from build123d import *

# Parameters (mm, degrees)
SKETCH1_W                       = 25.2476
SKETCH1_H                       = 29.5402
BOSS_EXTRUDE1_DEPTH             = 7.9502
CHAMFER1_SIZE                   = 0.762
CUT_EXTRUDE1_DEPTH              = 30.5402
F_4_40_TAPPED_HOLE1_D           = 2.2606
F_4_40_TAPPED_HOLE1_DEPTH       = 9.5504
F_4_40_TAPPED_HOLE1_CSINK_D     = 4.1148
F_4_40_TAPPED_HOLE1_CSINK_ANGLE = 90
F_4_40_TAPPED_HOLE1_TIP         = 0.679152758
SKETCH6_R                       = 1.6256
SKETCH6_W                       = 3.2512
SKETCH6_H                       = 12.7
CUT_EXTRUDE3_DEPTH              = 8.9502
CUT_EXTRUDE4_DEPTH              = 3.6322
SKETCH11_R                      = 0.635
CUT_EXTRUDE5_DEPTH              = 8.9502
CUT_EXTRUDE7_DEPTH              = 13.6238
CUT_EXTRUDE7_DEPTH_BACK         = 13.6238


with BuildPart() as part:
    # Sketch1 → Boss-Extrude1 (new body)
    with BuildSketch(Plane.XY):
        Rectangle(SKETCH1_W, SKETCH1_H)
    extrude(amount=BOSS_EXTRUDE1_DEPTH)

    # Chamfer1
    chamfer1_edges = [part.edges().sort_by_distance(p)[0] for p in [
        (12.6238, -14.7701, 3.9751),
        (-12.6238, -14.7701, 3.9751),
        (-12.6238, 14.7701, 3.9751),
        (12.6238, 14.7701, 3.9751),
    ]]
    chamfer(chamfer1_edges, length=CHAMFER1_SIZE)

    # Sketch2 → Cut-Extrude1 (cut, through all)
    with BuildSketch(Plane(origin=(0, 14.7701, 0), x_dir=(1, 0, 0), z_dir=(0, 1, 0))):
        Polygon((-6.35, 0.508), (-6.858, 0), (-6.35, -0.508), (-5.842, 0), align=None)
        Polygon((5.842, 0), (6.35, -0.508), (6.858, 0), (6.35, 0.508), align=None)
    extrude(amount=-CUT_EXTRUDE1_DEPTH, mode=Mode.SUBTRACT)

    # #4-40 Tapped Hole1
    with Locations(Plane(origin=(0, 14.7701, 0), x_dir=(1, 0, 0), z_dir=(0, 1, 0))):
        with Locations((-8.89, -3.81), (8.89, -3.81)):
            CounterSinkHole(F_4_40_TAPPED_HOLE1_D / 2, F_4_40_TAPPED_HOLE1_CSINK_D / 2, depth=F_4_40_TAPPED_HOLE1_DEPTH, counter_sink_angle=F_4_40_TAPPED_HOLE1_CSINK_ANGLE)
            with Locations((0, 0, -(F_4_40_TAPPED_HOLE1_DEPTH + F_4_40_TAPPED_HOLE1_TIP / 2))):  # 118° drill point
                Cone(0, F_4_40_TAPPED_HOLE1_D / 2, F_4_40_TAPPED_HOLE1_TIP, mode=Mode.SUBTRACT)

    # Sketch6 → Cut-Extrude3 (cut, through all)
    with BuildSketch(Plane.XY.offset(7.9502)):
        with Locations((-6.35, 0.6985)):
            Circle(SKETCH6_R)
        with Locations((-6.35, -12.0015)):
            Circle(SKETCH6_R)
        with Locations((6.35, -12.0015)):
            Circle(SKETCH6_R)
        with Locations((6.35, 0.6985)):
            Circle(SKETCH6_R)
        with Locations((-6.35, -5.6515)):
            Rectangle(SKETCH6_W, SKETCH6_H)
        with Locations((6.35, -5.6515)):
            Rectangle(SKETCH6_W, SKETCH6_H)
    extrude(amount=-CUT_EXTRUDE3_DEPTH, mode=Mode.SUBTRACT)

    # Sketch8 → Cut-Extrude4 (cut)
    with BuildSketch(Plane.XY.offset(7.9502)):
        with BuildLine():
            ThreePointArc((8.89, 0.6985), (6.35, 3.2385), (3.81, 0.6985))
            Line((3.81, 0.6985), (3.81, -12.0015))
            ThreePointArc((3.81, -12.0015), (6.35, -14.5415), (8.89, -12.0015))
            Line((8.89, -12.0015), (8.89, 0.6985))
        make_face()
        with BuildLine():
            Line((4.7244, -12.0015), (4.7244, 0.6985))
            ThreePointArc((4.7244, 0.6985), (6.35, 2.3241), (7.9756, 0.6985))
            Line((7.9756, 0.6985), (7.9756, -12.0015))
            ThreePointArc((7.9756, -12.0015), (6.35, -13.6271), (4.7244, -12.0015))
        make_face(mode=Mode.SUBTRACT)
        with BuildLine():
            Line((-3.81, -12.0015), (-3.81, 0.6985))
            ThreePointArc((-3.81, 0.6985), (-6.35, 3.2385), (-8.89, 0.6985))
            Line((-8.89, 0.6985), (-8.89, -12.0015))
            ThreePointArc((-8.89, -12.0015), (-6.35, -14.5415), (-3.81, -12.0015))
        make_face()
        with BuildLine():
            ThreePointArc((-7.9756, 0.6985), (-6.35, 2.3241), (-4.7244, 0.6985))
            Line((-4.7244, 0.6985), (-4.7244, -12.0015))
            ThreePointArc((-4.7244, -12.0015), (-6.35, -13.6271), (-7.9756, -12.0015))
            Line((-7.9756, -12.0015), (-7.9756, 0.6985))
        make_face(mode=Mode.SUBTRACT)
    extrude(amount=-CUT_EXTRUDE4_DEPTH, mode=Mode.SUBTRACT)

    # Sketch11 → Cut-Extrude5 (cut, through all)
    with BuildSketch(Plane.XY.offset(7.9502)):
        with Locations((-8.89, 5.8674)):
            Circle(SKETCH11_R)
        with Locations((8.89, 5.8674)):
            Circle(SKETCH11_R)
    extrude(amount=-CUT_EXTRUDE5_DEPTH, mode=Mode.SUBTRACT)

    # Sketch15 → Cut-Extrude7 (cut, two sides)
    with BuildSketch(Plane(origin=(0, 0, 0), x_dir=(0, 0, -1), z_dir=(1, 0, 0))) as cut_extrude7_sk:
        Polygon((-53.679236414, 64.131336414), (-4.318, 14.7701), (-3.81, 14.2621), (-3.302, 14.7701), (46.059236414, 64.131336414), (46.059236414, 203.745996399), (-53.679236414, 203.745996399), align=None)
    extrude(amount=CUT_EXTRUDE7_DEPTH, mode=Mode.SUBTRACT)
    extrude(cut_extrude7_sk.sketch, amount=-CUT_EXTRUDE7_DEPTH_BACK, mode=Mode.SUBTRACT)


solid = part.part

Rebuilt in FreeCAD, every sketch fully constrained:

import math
import FreeCAD as App
import Part
import Sketcher
from FreeCAD import Vector
Q = App.Units.Quantity


def edges_at(feature, points):
    """Names of the edges that pass closest to the given points."""
    edges = feature.Shape.Edges
    near = lambda p: min(range(len(edges)), key=lambda i: edges[i].distToShape(Part.Vertex(*p))[0])
    return sorted({f"Edge{near(p) + 1}" for p in points})

doc = App.newDocument("Part")
body = doc.addObject("PartDesign::Body", "Body")

sketch1 = body.newObject("Sketcher::SketchObject", "Sketch")
sketch1.AttachmentSupport = (doc.getObject("XY_Plane"), [""])
sketch1.MapMode = "FlatFace"
sketch1.addGeometry(Part.LineSegment(Vector(-13, 15, 0), Vector(-13, -15, 0)), False)
sketch1.addGeometry(Part.LineSegment(Vector(-13, -15, 0), Vector(13, -15, 0)), False)
sketch1.addGeometry(Part.LineSegment(Vector(13, -15, 0), Vector(13, 15, 0)), False)
sketch1.addGeometry(Part.LineSegment(Vector(13, 15, 0), Vector(-13, 15, 0)), False)
sketch1.addConstraint(Sketcher.Constraint("Coincident", 0, 2, 1, 1))
sketch1.addConstraint(Sketcher.Constraint("Coincident", 1, 2, 2, 1))
sketch1.addConstraint(Sketcher.Constraint("Coincident", 2, 2, 3, 1))
sketch1.addConstraint(Sketcher.Constraint("Coincident", 3, 2, 0, 1))
sketch1.addConstraint(Sketcher.Constraint("Vertical", 0))
sketch1.addConstraint(Sketcher.Constraint("Horizontal", 1))
sketch1.addConstraint(Sketcher.Constraint("Vertical", 2))
sketch1.addConstraint(Sketcher.Constraint("Horizontal", 3))
sketch1.addConstraint(Sketcher.Constraint("Symmetric", 0, 2, 2, 2, -1, 1))
sketch1.addConstraint(Sketcher.Constraint("DistanceX", 1, 1, 1, 2, Q("0.994 in")))
sketch1.addConstraint(Sketcher.Constraint("DistanceY", 0, 2, 0, 1, Q("1.163 in")))
pad1 = body.newObject("PartDesign::Pad", "Pad")
pad1.Profile = sketch1
pad1.Length = Q("0.313 in")
doc.recompute()

chamfer = body.newObject("PartDesign::Chamfer", "Chamfer")
chamfer.Base = (pad1, edges_at(pad1, [
    (12.624, -14.77, 3.975),
    (-12.624, -14.77, 3.975),
    (-12.624, 14.77, 3.975),
    (12.624, 14.77, 3.975),
]))
chamfer.Size = Q("0.03 in")

sketch2 = body.newObject("Sketcher::SketchObject", "Sketch001")
sketch2.AttachmentSupport = (doc.getObject("XZ_Plane"), [""])
sketch2.MapMode = "FlatFace"
sketch2.AttachmentOffset = App.Placement(Vector(0, 0, -0.5815 * 25.4), App.Rotation())
sketch2.addGeometry(Part.LineSegment(Vector(-6.3, -0.5, 0), Vector(-6.9, 0, 0)), False)
sketch2.addGeometry(Part.LineSegment(Vector(-6.9, 0, 0), Vector(-6.3, 0.5, 0)), False)
sketch2.addGeometry(Part.LineSegment(Vector(-6.3, 0.5, 0), Vector(-5.8, 0, 0)), False)
sketch2.addGeometry(Part.LineSegment(Vector(-5.8, 0, 0), Vector(-6.3, -0.5, 0)), False)
sketch2.addGeometry(Part.LineSegment(Vector(5.8, 0, 0), Vector(6.3, 0.5, 0)), False)
sketch2.addGeometry(Part.LineSegment(Vector(6.3, 0.5, 0), Vector(6.9, 0, 0)), False)
sketch2.addGeometry(Part.LineSegment(Vector(6.9, 0, 0), Vector(6.3, -0.5, 0)), False)
sketch2.addGeometry(Part.LineSegment(Vector(6.3, -0.5, 0), Vector(5.8, 0, 0)), False)
sketch2.addConstraint(Sketcher.Constraint("Coincident", 0, 2, 1, 1))
sketch2.addConstraint(Sketcher.Constraint("Coincident", 1, 2, 2, 1))
sketch2.addConstraint(Sketcher.Constraint("Coincident", 2, 2, 3, 1))
sketch2.addConstraint(Sketcher.Constraint("Coincident", 3, 2, 0, 1))
sketch2.addConstraint(Sketcher.Constraint("Coincident", 4, 2, 5, 1))
sketch2.addConstraint(Sketcher.Constraint("Coincident", 5, 2, 6, 1))
sketch2.addConstraint(Sketcher.Constraint("Coincident", 6, 2, 7, 1))
sketch2.addConstraint(Sketcher.Constraint("Coincident", 7, 2, 4, 1))
sketch2.addConstraint(Sketcher.Constraint("Symmetric", 3, 2, 4, 2, -1, 1))
sketch2.addConstraint(Sketcher.Constraint("Symmetric", 0, 2, 5, 2, -1, 1))
sketch2.addConstraint(Sketcher.Constraint("Symmetric", 1, 2, 6, 2, -1, 1))
sketch2.addConstraint(Sketcher.Constraint("Symmetric", 2, 2, 7, 2, -1, 1))
sketch2.addConstraint(Sketcher.Constraint("Symmetric", 1, 2, 4, 2, -2))
sketch2.addConstraint(Sketcher.Constraint("PointOnObject", 0, 2, -1))
sketch2.addConstraint(Sketcher.Constraint("PointOnObject", 2, 2, -1))
sketch2.addConstraint(Sketcher.Constraint("Perpendicular", 0, 1))
sketch2.addConstraint(Sketcher.Constraint("Perpendicular", 1, 2))
sketch2.addConstraint(Sketcher.Constraint("DistanceX", 1, 2, 4, 2, Q("0.5 in")))
sketch2.addConstraint(Sketcher.Constraint("DistanceX", 0, 2, -1, 1, Q("0.27 in")))
pocket1 = body.newObject("PartDesign::Pocket", "Pocket")
pocket1.Profile = sketch2
pocket1.Type = "ThroughAll"
pocket1.Reversed = True

sketch3 = body.newObject("Sketcher::SketchObject", "Sketch002")
sketch3.AttachmentSupport = (doc.getObject("XZ_Plane"), [""])
sketch3.MapMode = "FlatFace"
sketch3.AttachmentOffset = App.Placement(Vector(0, 0, -0.5815 * 25.4), App.Rotation())
sketch3.addGeometry(Part.Circle(Vector(-8.9, 3.8, 0), Vector(0, 0, 1), 1.1), False)
sketch3.addGeometry(Part.Circle(Vector(8.9, 3.8, 0), Vector(0, 0, 1), 1.1), False)
sketch3.addConstraint(Sketcher.Constraint("Equal", 0, 1))
sketch3.addConstraint(Sketcher.Constraint("Symmetric", 0, 3, 1, 3, -2))
sketch3.addConstraint(Sketcher.Constraint("Diameter", 0, Q("0.089 in")))
sketch3.addConstraint(Sketcher.Constraint("DistanceX", 0, 3, 1, 3, Q("0.7 in")))
sketch3.addConstraint(Sketcher.Constraint("DistanceY", -1, 1, 0, 3, Q("0.15 in")))
doc.recompute()
hole = body.newObject("PartDesign::Hole", "Hole")
hole.Profile = sketch3
hole.ThreadType = "None"
hole.Diameter = Q("0.089 in")
hole.DepthType = "Dimension"
hole.Depth = Q("0.376 in")
hole.DrillPoint = "Angled"
hole.DrillPointAngle = 118
hole.HoleCutType = "Countersink"
hole.HoleCutDiameter = Q("0.162 in")
hole.HoleCutCountersinkAngle = 90
hole.Reversed = True

sketch4 = body.newObject("Sketcher::SketchObject", "Sketch003")
sketch4.AttachmentSupport = (doc.getObject("XY_Plane"), [""])
sketch4.MapMode = "FlatFace"
sketch4.AttachmentOffset = App.Placement(Vector(0, 0, 0.313 * 25.4), App.Rotation())
sketch4.addGeometry(Part.ArcOfCircle(Part.Circle(Vector(-6.3, 0.7, 0), Vector(0, 0, 1), 1.6), math.radians(0), math.radians(180)), False)
sketch4.addGeometry(Part.LineSegment(Vector(-8, 0.7, 0), Vector(-8, -12, 0)), False)
sketch4.addGeometry(Part.ArcOfCircle(Part.Circle(Vector(-6.3, -12, 0), Vector(0, 0, 1), 1.6), math.radians(180), math.radians(360)), False)
sketch4.addGeometry(Part.LineSegment(Vector(-4.7, -12, 0), Vector(-4.7, 0.7, 0)), False)
sketch4.addGeometry(Part.ArcOfCircle(Part.Circle(Vector(6.3, -12, 0), Vector(0, 0, 1), 1.6), math.radians(180), math.radians(360)), False)
sketch4.addGeometry(Part.LineSegment(Vector(8, -12, 0), Vector(8, 0.7, 0)), False)
sketch4.addGeometry(Part.ArcOfCircle(Part.Circle(Vector(6.3, 0.7, 0), Vector(0, 0, 1), 1.6), math.radians(0), math.radians(180)), False)
sketch4.addGeometry(Part.LineSegment(Vector(4.7, 0.7, 0), Vector(4.7, -12, 0)), False)
sketch4.addConstraint(Sketcher.Constraint("Tangent", 0, 2, 1, 1))
sketch4.addConstraint(Sketcher.Constraint("Tangent", 1, 2, 2, 1))
sketch4.addConstraint(Sketcher.Constraint("Tangent", 2, 2, 3, 1))
sketch4.addConstraint(Sketcher.Constraint("Tangent", 3, 2, 0, 1))
sketch4.addConstraint(Sketcher.Constraint("Tangent", 4, 2, 5, 1))
sketch4.addConstraint(Sketcher.Constraint("Tangent", 5, 2, 6, 1))
sketch4.addConstraint(Sketcher.Constraint("Tangent", 6, 2, 7, 1))
sketch4.addConstraint(Sketcher.Constraint("Tangent", 7, 2, 4, 1))
sketch4.addConstraint(Sketcher.Constraint("Vertical", 1))
sketch4.addConstraint(Sketcher.Constraint("Vertical", 3))
sketch4.addConstraint(Sketcher.Constraint("Vertical", 5))
sketch4.addConstraint(Sketcher.Constraint("Vertical", 7))
sketch4.addConstraint(Sketcher.Constraint("Equal", 2, 4))
sketch4.addConstraint(Sketcher.Constraint("Symmetric", 2, 3, 4, 3, -2))
sketch4.addConstraint(Sketcher.Constraint("Horizontal", 0, 3, 6, 3))
sketch4.addConstraint(Sketcher.Constraint("DistanceY", 1, 2, 1, 1, Q("0.5 in")))
sketch4.addConstraint(Sketcher.Constraint("Radius", 0, Q("0.064 in")))
sketch4.addConstraint(Sketcher.Constraint("DistanceX", 2, 3, 4, 3, Q("0.5 in")))
sketch4.addConstraint(Sketcher.Constraint("DistanceY", -1, 1, 0, 3, Q("0.0275 in")))
pocket2 = body.newObject("PartDesign::Pocket", "Pocket001")
pocket2.Profile = sketch4
pocket2.Type = "ThroughAll"

sketch5 = body.newObject("Sketcher::SketchObject", "Sketch004")
sketch5.AttachmentSupport = (doc.getObject("XY_Plane"), [""])
sketch5.MapMode = "FlatFace"
sketch5.AttachmentOffset = App.Placement(Vector(0, 0, 0.313 * 25.4), App.Rotation())
sketch5.addGeometry(Part.ArcOfCircle(Part.Circle(Vector(6.3, 0.7, 0), Vector(0, 0, 1), 2.5), math.radians(0), math.radians(180)), False)
sketch5.addGeometry(Part.LineSegment(Vector(3.8, 0.7, 0), Vector(3.8, -12, 0)), False)
sketch5.addGeometry(Part.ArcOfCircle(Part.Circle(Vector(6.3, -12, 0), Vector(0, 0, 1), 2.5), math.radians(180), math.radians(360)), False)
sketch5.addGeometry(Part.LineSegment(Vector(8.9, -12, 0), Vector(8.9, 0.7, 0)), False)
sketch5.addGeometry(Part.ArcOfCircle(Part.Circle(Vector(6.3, -12, 0), Vector(0, 0, 1), 1.6), math.radians(180), math.radians(360)), False)
sketch5.addGeometry(Part.LineSegment(Vector(4.7, -12, 0), Vector(4.7, 0.7, 0)), False)
sketch5.addGeometry(Part.ArcOfCircle(Part.Circle(Vector(6.3, 0.7, 0), Vector(0, 0, 1), 1.6), math.radians(0), math.radians(180)), False)
sketch5.addGeometry(Part.LineSegment(Vector(8, 0.7, 0), Vector(8, -12, 0)), False)
sketch5.addGeometry(Part.LineSegment(Vector(-3.8, -12, 0), Vector(-3.8, 0.7, 0)), False)
sketch5.addGeometry(Part.ArcOfCircle(Part.Circle(Vector(-6.3, 0.7, 0), Vector(0, 0, 1), 2.5), math.radians(0), math.radians(180)), False)
sketch5.addGeometry(Part.LineSegment(Vector(-8.9, 0.7, 0), Vector(-8.9, -12, 0)), False)
sketch5.addGeometry(Part.ArcOfCircle(Part.Circle(Vector(-6.3, -12, 0), Vector(0, 0, 1), 2.5), math.radians(180), math.radians(360)), False)
sketch5.addGeometry(Part.LineSegment(Vector(-8, -12, 0), Vector(-8, 0.7, 0)), False)
sketch5.addGeometry(Part.ArcOfCircle(Part.Circle(Vector(-6.3, 0.7, 0), Vector(0, 0, 1), 1.6), math.radians(0), math.radians(180)), False)
sketch5.addGeometry(Part.LineSegment(Vector(-4.7, 0.7, 0), Vector(-4.7, -12, 0)), False)
sketch5.addGeometry(Part.ArcOfCircle(Part.Circle(Vector(-6.3, -12, 0), Vector(0, 0, 1), 1.6), math.radians(180), math.radians(360)), False)
sketch5.addConstraint(Sketcher.Constraint("Tangent", 0, 2, 1, 1))
sketch5.addConstraint(Sketcher.Constraint("Tangent", 1, 2, 2, 1))
sketch5.addConstraint(Sketcher.Constraint("Tangent", 2, 2, 3, 1))
sketch5.addConstraint(Sketcher.Constraint("Tangent", 3, 2, 0, 1))
sketch5.addConstraint(Sketcher.Constraint("Tangent", 4, 1, 5, 1))
sketch5.addConstraint(Sketcher.Constraint("Tangent", 5, 2, 6, 2))
sketch5.addConstraint(Sketcher.Constraint("Tangent", 6, 1, 7, 1))
sketch5.addConstraint(Sketcher.Constraint("Tangent", 7, 2, 4, 2))
sketch5.addConstraint(Sketcher.Constraint("Tangent", 8, 2, 9, 1))
sketch5.addConstraint(Sketcher.Constraint("Tangent", 9, 2, 10, 1))
sketch5.addConstraint(Sketcher.Constraint("Tangent", 10, 2, 11, 1))
sketch5.addConstraint(Sketcher.Constraint("Tangent", 11, 2, 8, 1))
sketch5.addConstraint(Sketcher.Constraint("Tangent", 12, 2, 13, 2))
sketch5.addConstraint(Sketcher.Constraint("Tangent", 13, 1, 14, 1))
sketch5.addConstraint(Sketcher.Constraint("Tangent", 14, 2, 15, 2))
sketch5.addConstraint(Sketcher.Constraint("Tangent", 15, 1, 12, 1))
sketch5.addConstraint(Sketcher.Constraint("Vertical", 1))
sketch5.addConstraint(Sketcher.Constraint("Vertical", 3))
sketch5.addConstraint(Sketcher.Constraint("Vertical", 5))
sketch5.addConstraint(Sketcher.Constraint("Vertical", 7))
sketch5.addConstraint(Sketcher.Constraint("Vertical", 8))
sketch5.addConstraint(Sketcher.Constraint("Vertical", 10))
sketch5.addConstraint(Sketcher.Constraint("Vertical", 12))
sketch5.addConstraint(Sketcher.Constraint("Vertical", 14))
sketch5.addConstraint(Sketcher.Constraint("Coincident", 4, 3, 2, 3))
sketch5.addConstraint(Sketcher.Constraint("Coincident", 13, 3, 9, 3))
sketch5.addConstraint(Sketcher.Constraint("Equal", 2, 9))
sketch5.addConstraint(Sketcher.Constraint("Equal", 6, 13))
sketch5.addConstraint(Sketcher.Constraint("Symmetric", 0, 3, 9, 3, -2))
sketch5.addConstraint(Sketcher.Constraint("Horizontal", 6, 3, 9, 3))
sketch5.addConstraint(Sketcher.Constraint("Horizontal", 4, 3, 11, 3))
sketch5.addConstraint(Sketcher.Constraint("Horizontal", 4, 3, 15, 3))
sketch5.addConstraint(Sketcher.Constraint("Radius", 0, Q("0.1 in")))
sketch5.addConstraint(Sketcher.Constraint("DistanceY", 1, 2, 1, 1, Q("0.5 in")))
sketch5.addConstraint(Sketcher.Constraint("Radius", 4, Q("0.064 in")))
sketch5.addConstraint(Sketcher.Constraint("DistanceX", 9, 3, 0, 3, Q("0.5 in")))
sketch5.addConstraint(Sketcher.Constraint("DistanceY", -1, 1, 0, 3, Q("0.0275 in")))
pocket3 = body.newObject("PartDesign::Pocket", "Pocket002")
pocket3.Profile = sketch5
pocket3.Length = Q("0.143 in")

sketch6 = body.newObject("Sketcher::SketchObject", "Sketch005")
sketch6.AttachmentSupport = (doc.getObject("XY_Plane"), [""])
sketch6.MapMode = "FlatFace"
sketch6.AttachmentOffset = App.Placement(Vector(0, 0, 0.313 * 25.4), App.Rotation())
sketch6.addGeometry(Part.Circle(Vector(-8.9, 5.9, 0), Vector(0, 0, 1), 0.6), False)
sketch6.addGeometry(Part.Circle(Vector(8.9, 5.9, 0), Vector(0, 0, 1), 0.6), False)
sketch6.addConstraint(Sketcher.Constraint("Equal", 0, 1))
sketch6.addConstraint(Sketcher.Constraint("Symmetric", 0, 3, 1, 3, -2))
sketch6.addConstraint(Sketcher.Constraint("Diameter", 0, Q("0.05 in")))
sketch6.addConstraint(Sketcher.Constraint("DistanceX", 0, 3, 1, 3, Q("0.7 in")))
sketch6.addConstraint(Sketcher.Constraint("DistanceY", -1, 1, 0, 3, Q("0.231 in")))
pocket4 = body.newObject("PartDesign::Pocket", "Pocket003")
pocket4.Profile = sketch6
pocket4.Type = "ThroughAll"

sketch7 = body.newObject("Sketcher::SketchObject", "Sketch006")
sketch7.AttachmentSupport = (doc.getObject("YZ_Plane"), [""])
sketch7.MapMode = "FlatFace"
sketch7.addGeometry(Part.LineSegment(Vector(64, 54, 0), Vector(14, 4, 0)), False)
sketch7.addGeometry(Part.LineSegment(Vector(14, 4, 0), Vector(64, -46, 0)), False)
sketch7.addGeometry(Part.LineSegment(Vector(64, -46, 0), Vector(204, -46, 0)), False)
sketch7.addGeometry(Part.LineSegment(Vector(204, -46, 0), Vector(204, 54, 0)), False)
sketch7.addGeometry(Part.LineSegment(Vector(204, 54, 0), Vector(64, 54, 0)), False)
sketch7.addConstraint(Sketcher.Constraint("Coincident", 0, 2, 1, 1))
sketch7.addConstraint(Sketcher.Constraint("Coincident", 1, 2, 2, 1))
sketch7.addConstraint(Sketcher.Constraint("Coincident", 2, 2, 3, 1))
sketch7.addConstraint(Sketcher.Constraint("Coincident", 3, 2, 4, 1))
sketch7.addConstraint(Sketcher.Constraint("Coincident", 4, 2, 0, 1))
sketch7.addConstraint(Sketcher.Constraint("Horizontal", 2))
sketch7.addConstraint(Sketcher.Constraint("Vertical", 3))
sketch7.addConstraint(Sketcher.Constraint("Horizontal", 4))
sketch7.addConstraint(Sketcher.Constraint("Perpendicular", 0, 1))
sketch7.addConstraint(Sketcher.Constraint("Vertical", 1, 2, 4, 2))
sketch7.addConstraint(Sketcher.Constraint("Equal", 0, 1))
sketch7.addConstraint(Sketcher.Constraint("DistanceY", -1, 1, 0, 2, Q("0.15 in")))
sketch7.addConstraint(Sketcher.Constraint("DistanceX", -1, 1, 0, 2, Q("0.5615 in")))
sketch7.addConstraint(Sketcher.Constraint("DistanceX", 2, 1, 2, 2, Q("139.61466 mm")))
sketch7.addConstraint(Sketcher.Constraint("Distance", 0, Q("70.52575 mm")))
pocket5 = body.newObject("PartDesign::Pocket", "Pocket004")
pocket5.Profile = sketch7
pocket5.Type = "ThroughAll"
pocket5.Midplane = True

doc.recompute()
